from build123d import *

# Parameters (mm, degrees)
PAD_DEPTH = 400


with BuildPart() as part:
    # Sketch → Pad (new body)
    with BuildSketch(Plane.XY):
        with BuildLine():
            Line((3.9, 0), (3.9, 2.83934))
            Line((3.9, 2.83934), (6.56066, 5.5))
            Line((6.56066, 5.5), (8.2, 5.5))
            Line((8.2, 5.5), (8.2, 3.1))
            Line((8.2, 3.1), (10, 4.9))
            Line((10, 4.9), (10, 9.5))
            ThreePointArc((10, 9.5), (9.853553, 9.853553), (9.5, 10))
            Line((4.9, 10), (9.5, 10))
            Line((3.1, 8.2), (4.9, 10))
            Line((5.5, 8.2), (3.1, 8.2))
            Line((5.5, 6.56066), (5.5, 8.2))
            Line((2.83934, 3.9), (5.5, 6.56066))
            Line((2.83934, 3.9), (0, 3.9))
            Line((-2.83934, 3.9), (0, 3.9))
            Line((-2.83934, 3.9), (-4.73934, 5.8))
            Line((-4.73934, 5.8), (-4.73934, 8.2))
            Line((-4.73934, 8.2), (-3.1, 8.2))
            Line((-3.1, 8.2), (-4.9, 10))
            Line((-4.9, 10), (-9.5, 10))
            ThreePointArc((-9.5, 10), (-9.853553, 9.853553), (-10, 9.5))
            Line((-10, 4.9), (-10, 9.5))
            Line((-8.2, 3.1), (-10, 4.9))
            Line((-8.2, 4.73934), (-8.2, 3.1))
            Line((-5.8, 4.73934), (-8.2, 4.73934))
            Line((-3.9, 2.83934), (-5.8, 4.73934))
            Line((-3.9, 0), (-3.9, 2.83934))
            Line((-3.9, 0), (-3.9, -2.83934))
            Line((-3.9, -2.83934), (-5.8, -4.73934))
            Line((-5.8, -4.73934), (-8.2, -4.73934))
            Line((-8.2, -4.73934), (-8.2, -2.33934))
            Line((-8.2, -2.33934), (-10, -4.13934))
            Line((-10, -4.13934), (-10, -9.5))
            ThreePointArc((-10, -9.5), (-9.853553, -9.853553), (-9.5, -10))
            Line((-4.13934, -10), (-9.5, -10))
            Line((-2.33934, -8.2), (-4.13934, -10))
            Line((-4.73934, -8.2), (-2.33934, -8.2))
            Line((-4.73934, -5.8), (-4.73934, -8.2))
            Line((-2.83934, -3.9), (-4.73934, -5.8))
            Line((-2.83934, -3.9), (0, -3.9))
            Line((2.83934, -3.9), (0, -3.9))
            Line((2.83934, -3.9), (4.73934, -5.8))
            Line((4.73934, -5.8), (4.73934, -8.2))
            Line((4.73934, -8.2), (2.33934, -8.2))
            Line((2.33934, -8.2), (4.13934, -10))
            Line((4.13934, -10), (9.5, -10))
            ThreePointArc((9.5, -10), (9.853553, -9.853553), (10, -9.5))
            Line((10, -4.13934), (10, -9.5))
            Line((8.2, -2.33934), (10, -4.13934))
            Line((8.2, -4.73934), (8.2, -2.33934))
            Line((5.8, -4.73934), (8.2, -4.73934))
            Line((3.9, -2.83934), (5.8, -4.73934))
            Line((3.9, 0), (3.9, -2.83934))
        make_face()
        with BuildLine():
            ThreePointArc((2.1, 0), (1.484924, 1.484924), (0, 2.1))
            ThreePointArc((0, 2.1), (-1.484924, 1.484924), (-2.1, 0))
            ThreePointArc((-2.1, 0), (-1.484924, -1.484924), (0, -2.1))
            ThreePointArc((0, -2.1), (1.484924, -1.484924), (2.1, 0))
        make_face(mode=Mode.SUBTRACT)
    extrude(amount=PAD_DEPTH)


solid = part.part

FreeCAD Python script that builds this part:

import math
import FreeCAD as App
import Part
import Sketcher

V = App.Vector
Q = App.Units.Quantity

doc = App.newDocument("Part")
params = doc.addObject("Spreadsheet::Sheet", "Params")
for row, (alias, value) in enumerate([
    ("sketch1_radius", "0.500001 mm"),
    ("sketch1_radius2", "2.100001 mm"),
    ("sketch1_width", "4.6 mm"),
    ("sketch1_width2", "2.4 mm"),
    ("pad1_length", "400 mm"),
], start=1):
    params.set(f"A{row}", alias)
    params.set(f"B{row}", "=" + value)
    params.setAlias(f"B{row}", alias)

body = doc.addObject("PartDesign::Body", "Body")

# Sketch on XY plane
sketch1 = doc.addObject("Sketcher::SketchObject", "Sketch")
body.addObject(sketch1)
sketch1.AttachmentSupport = (doc.XY_Plane, [""])
sketch1.MapMode = "FlatFace"
sketch1.addGeometry(Part.LineSegment(V(3.9, 2.8, 0), V(6.6, 5.5, 0)), False)
sketch1.addGeometry(Part.LineSegment(V(6.6, 5.5, 0), V(8.2, 5.5, 0)), False)
sketch1.addGeometry(Part.LineSegment(V(8.2, 5.5, 0), V(8.2, 3.1, 0)), False)
sketch1.addGeometry(Part.LineSegment(V(8.2, 3.1, 0), V(10, 4.9, 0)), False)
sketch1.addGeometry(Part.LineSegment(V(10, 4.9, 0), V(10, 9.5, 0)), False)
sketch1.addGeometry(Part.ArcOfCircle(Part.Circle(V(9.5, 9.5, 0), V(0, 0, 1), 0.5), math.radians(0), math.radians(90)), False)
sketch1.addGeometry(Part.LineSegment(V(9.5, 10, 0), V(4.9, 10, 0)), False)
sketch1.addGeometry(Part.LineSegment(V(4.9, 10, 0), V(3.1, 8.2, 0)), False)
sketch1.addGeometry(Part.LineSegment(V(3.1, 8.2, 0), V(5.5, 8.2, 0)), False)
sketch1.addGeometry(Part.LineSegment(V(5.5, 8.2, 0), V(5.5, 6.6, 0)), False)
sketch1.addGeometry(Part.LineSegment(V(5.5, 6.6, 0), V(2.8, 3.9, 0)), False)
sketch1.addGeometry(Part.LineSegment(V(2.8, 3.9, 0), V(-2.8, 3.9, 0)), False)
sketch1.addGeometry(Part.LineSegment(V(-2.8, 3.9, 0), V(-4.7, 5.8, 0)), False)
sketch1.addGeometry(Part.LineSegment(V(-4.7, 5.8, 0), V(-4.7, 8.2, 0)), False)
sketch1.addGeometry(Part.LineSegment(V(-4.7, 8.2, 0), V(-3.1, 8.2, 0)), False)
sketch1.addGeometry(Part.LineSegment(V(-3.1, 8.2, 0), V(-4.9, 10, 0)), False)
sketch1.addGeometry(Part.LineSegment(V(-4.9, 10, 0), V(-9.5, 10, 0)), False)
sketch1.addGeometry(Part.ArcOfCircle(Part.Circle(V(-9.5, 9.5, 0), V(0, 0, 1), 0.5), math.radians(90), math.radians(180)), False)
sketch1.addGeometry(Part.LineSegment(V(-10, 9.5, 0), V(-10, 4.9, 0)), False)
sketch1.addGeometry(Part.LineSegment(V(-10, 4.9, 0), V(-8.2, 3.1, 0)), False)
sketch1.addGeometry(Part.LineSegment(V(-8.2, 3.1, 0), V(-8.2, 4.7, 0)), False)
sketch1.addGeometry(Part.LineSegment(V(-8.2, 4.7, 0), V(-5.8, 4.7, 0)), False)
sketch1.addGeometry(Part.LineSegment(V(-5.8, 4.7, 0), V(-3.9, 2.8, 0)), False)
sketch1.addGeometry(Part.LineSegment(V(-3.9, 2.8, 0), V(-3.9, -2.8, 0)), False)
sketch1.addGeometry(Part.LineSegment(V(-3.9, -2.8, 0), V(-5.8, -4.7, 0)), False)
sketch1.addGeometry(Part.LineSegment(V(-5.8, -4.7, 0), V(-8.2, -4.7, 0)), False)
sketch1.addGeometry(Part.LineSegment(V(-8.2, -4.7, 0), V(-8.2, -2.3, 0)), False)
sketch1.addGeometry(Part.LineSegment(V(-8.2, -2.3, 0), V(-10, -4.1, 0)), False)
sketch1.addGeometry(Part.LineSegment(V(-10, -4.1, 0), V(-10, -9.5, 0)), False)
sketch1.addGeometry(Part.ArcOfCircle(Part.Circle(V(-9.5, -9.5, 0), V(0, 0, 1), 0.5), math.radians(-180), math.radians(-90)), False)
sketch1.addGeometry(Part.LineSegment(V(-9.5, -10, 0), V(-4.1, -10, 0)), False)
sketch1.addGeometry(Part.LineSegment(V(-4.1, -10, 0), V(-2.3, -8.2, 0)), False)
sketch1.addGeometry(Part.LineSegment(V(-2.3, -8.2, 0), V(-4.7, -8.2, 0)), False)
sketch1.addGeometry(Part.LineSegment(V(-4.7, -8.2, 0), V(-4.7, -5.8, 0)), False)
sketch1.addGeometry(Part.LineSegment(V(-4.7, -5.8, 0), V(-2.8, -3.9, 0)), False)
sketch1.addGeometry(Part.LineSegment(V(-2.8, -3.9, 0), V(2.8, -3.9, 0)), False)
sketch1.addGeometry(Part.LineSegment(V(2.8, -3.9, 0), V(4.7, -5.8, 0)), False)
sketch1.addGeometry(Part.LineSegment(V(4.7, -5.8, 0), V(4.7, -8.2, 0)), False)
sketch1.addGeometry(Part.LineSegment(V(4.7, -8.2, 0), V(2.3, -8.2, 0)), False)
sketch1.addGeometry(Part.LineSegment(V(2.3, -8.2, 0), V(4.1, -10, 0)), False)
sketch1.addGeometry(Part.LineSegment(V(4.1, -10, 0), V(9.5, -10, 0)), False)
sketch1.addGeometry(Part.ArcOfCircle(Part.Circle(V(9.5, -9.5, 0), V(0, 0, 1), 0.5), math.radians(-90), math.radians(0)), False)
sketch1.addGeometry(Part.LineSegment(V(10, -9.5, 0), V(10, -4.1, 0)), False)
sketch1.addGeometry(Part.LineSegment(V(10, -4.1, 0), V(8.2, -2.3, 0)), False)
sketch1.addGeometry(Part.LineSegment(V(8.2, -2.3, 0), V(8.2, -4.7, 0)), False)
sketch1.addGeometry(Part.LineSegment(V(8.2, -4.7, 0), V(5.8, -4.7, 0)), False)
sketch1.addGeometry(Part.LineSegment(V(5.8, -4.7, 0), V(3.9, -2.8, 0)), False)
sketch1.addGeometry(Part.LineSegment(V(3.9, -2.8, 0), V(3.9, 2.8, 0)), False)
sketch1.addGeometry(Part.ArcOfCircle(Part.Circle(V(0, 0, 0), V(0, 0, 1), 2.1), math.radians(0), math.radians(90)), False)
sketch1.addGeometry(Part.ArcOfCircle(Part.Circle(V(0, 0, 0), V(0, 0, 1), 2.1), math.radians(-90), math.radians(0)), False)
sketch1.addGeometry(Part.ArcOfCircle(Part.Circle(V(0, 0, 0), V(0, 0, 1), 2.1), math.radians(-180), math.radians(-90)), False)
sketch1.addGeometry(Part.ArcOfCircle(Part.Circle(V(0, 0, 0), V(0, 0, 1), 2.1), math.radians(90), math.radians(180)), False)
sketch1.addConstraint(Sketcher.Constraint("Coincident", 0, 2, 1, 1))
sketch1.addConstraint(Sketcher.Constraint("Coincident", 1, 2, 2, 1))
sketch1.addConstraint(Sketcher.Constraint("Coincident", 2, 2, 3, 1))
sketch1.addConstraint(Sketcher.Constraint("Coincident", 3, 2, 4, 1))
sketch1.addConstraint(Sketcher.Constraint("Coincident", 4, 2, 5, 1))
sketch1.addConstraint(Sketcher.Constraint("Coincident", 5, 2, 6, 1))
sketch1.addConstraint(Sketcher.Constraint("Coincident", 6, 2, 7, 1))
sketch1.addConstraint(Sketcher.Constraint("Coincident", 7, 2, 8, 1))
sketch1.addConstraint(Sketcher.Constraint("Coincident", 8, 2, 9, 1))
sketch1.addConstraint(Sketcher.Constraint("Coincident", 9, 2, 10, 1))
sketch1.addConstraint(Sketcher.Constraint("Coincident", 10, 2, 11, 1))
sketch1.addConstraint(Sketcher.Constraint("Coincident", 11, 2, 12, 1))
sketch1.addConstraint(Sketcher.Constraint("Coincident", 12, 2, 13, 1))
sketch1.addConstraint(Sketcher.Constraint("Coincident", 13, 2, 14, 1))
sketch1.addConstraint(Sketcher.Constraint("Coincident", 14, 2, 15, 1))
sketch1.addConstraint(Sketcher.Constraint("Coincident", 15, 2, 16, 1))
sketch1.addConstraint(Sketcher.Constraint("Coincident", 16, 2, 17, 1))
sketch1.addConstraint(Sketcher.Constraint("Coincident", 17, 2, 18, 1))
sketch1.addConstraint(Sketcher.Constraint("Coincident", 18, 2, 19, 1))
sketch1.addConstraint(Sketcher.Constraint("Coincident", 19, 2, 20, 1))
sketch1.addConstraint(Sketcher.Constraint("Coincident", 20, 2, 21, 1))
sketch1.addConstraint(Sketcher.Constraint("Coincident", 21, 2, 22, 1))
sketch1.addConstraint(Sketcher.Constraint("Coincident", 22, 2, 23, 1))
sketch1.addConstraint(Sketcher.Constraint("Coincident", 23, 2, 24, 1))
sketch1.addConstraint(Sketcher.Constraint("Coincident", 24, 2, 25, 1))
sketch1.addConstraint(Sketcher.Constraint("Coincident", 25, 2, 26, 1))
sketch1.addConstraint(Sketcher.Constraint("Coincident", 26, 2, 27, 1))
sketch1.addConstraint(Sketcher.Constraint("Coincident", 27, 2, 28, 1))
sketch1.addConstraint(Sketcher.Constraint("Coincident", 28, 2, 29, 1))
sketch1.addConstraint(Sketcher.Constraint("Coincident", 29, 2, 30, 1))
sketch1.addConstraint(Sketcher.Constraint("Coincident", 30, 2, 31, 1))
sketch1.addConstraint(Sketcher.Constraint("Coincident", 31, 2, 32, 1))
sketch1.addConstraint(Sketcher.Constraint("Coincident", 32, 2, 33, 1))
sketch1.addConstraint(Sketcher.Constraint("Coincident", 33, 2, 34, 1))
sketch1.addConstraint(Sketcher.Constraint("Coincident", 34, 2, 35, 1))
sketch1.addConstraint(Sketcher.Constraint("Coincident", 35, 2, 36, 1))
sketch1.addConstraint(Sketcher.Constraint("Coincident", 36, 2, 37, 1))
sketch1.addConstraint(Sketcher.Constraint("Coincident", 37, 2, 38, 1))
sketch1.addConstraint(Sketcher.Constraint("Coincident", 38, 2, 39, 1))
sketch1.addConstraint(Sketcher.Constraint("Coincident", 39, 2, 40, 1))
sketch1.addConstraint(Sketcher.Constraint("Coincident", 40, 2, 41, 1))
sketch1.addConstraint(Sketcher.Constraint("Coincident", 41, 2, 42, 1))
sketch1.addConstraint(Sketcher.Constraint("Coincident", 42, 2, 43, 1))
sketch1.addConstraint(Sketcher.Constraint("Coincident", 43, 2, 44, 1))
sketch1.addConstraint(Sketcher.Constraint("Coincident", 44, 2, 45, 1))
sketch1.addConstraint(Sketcher.Constraint("Coincident", 45, 2, 46, 1))
sketch1.addConstraint(Sketcher.Constraint("Coincident", 46, 2, 47, 1))
sketch1.addConstraint(Sketcher.Constraint("Coincident", 47, 2, 0, 1))
sketch1.addConstraint(Sketcher.Constraint("Tangent", 48, 1, 49, 2))
sketch1.addConstraint(Sketcher.Constraint("Tangent", 49, 1, 50, 2))
sketch1.addConstraint(Sketcher.Constraint("Tangent", 50, 1, 51, 2))
sketch1.addConstraint(Sketcher.Constraint("Tangent", 51, 1, 48, 2))
sketch1.addConstraint(Sketcher.Constraint("Horizontal", 1))
sketch1.addConstraint(Sketcher.Constraint("Vertical", 2))
sketch1.addConstraint(Sketcher.Constraint("Vertical", 4))
sketch1.addConstraint(Sketcher.Constraint("Horizontal", 6))
sketch1.addConstraint(Sketcher.Constraint("Horizontal", 8))
sketch1.addConstraint(Sketcher.Constraint("Vertical", 9))
sketch1.addConstraint(Sketcher.Constraint("Horizontal", 11))
sketch1.addConstraint(Sketcher.Constraint("Vertical", 13))
sketch1.addConstraint(Sketcher.Constraint("Horizontal", 14))
sketch1.addConstraint(Sketcher.Constraint("Horizontal", 16))
sketch1.addConstraint(Sketcher.Constraint("Vertical", 18))
sketch1.addConstraint(Sketcher.Constraint("Vertical", 20))
sketch1.addConstraint(Sketcher.Constraint("Horizontal", 21))
sketch1.addConstraint(Sketcher.Constraint("Vertical", 23))
sketch1.addConstraint(Sketcher.Constraint("Horizontal", 25))
sketch1.addConstraint(Sketcher.Constraint("Vertical", 26))
sketch1.addConstraint(Sketcher.Constraint("Vertical", 28))
sketch1.addConstraint(Sketcher.Constraint("Horizontal", 30))
sketch1.addConstraint(Sketcher.Constraint("Horizontal", 32))
sketch1.addConstraint(Sketcher.Constraint("Vertical", 33))
sketch1.addConstraint(Sketcher.Constraint("Horizontal", 35))
sketch1.addConstraint(Sketcher.Constraint("Vertical", 37))
sketch1.addConstraint(Sketcher.Constraint("Horizontal", 38))
sketch1.addConstraint(Sketcher.Constraint("Horizontal", 40))
sketch1.addConstraint(Sketcher.Constraint("Vertical", 42))
sketch1.addConstraint(Sketcher.Constraint("Vertical", 44))
sketch1.addConstraint(Sketcher.Constraint("Horizontal", 45))
sketch1.addConstraint(Sketcher.Constraint("Vertical", 47))
sketch1.addConstraint(Sketcher.Constraint("Coincident", 48, 3, -1, 1))
sketch1.addConstraint(Sketcher.Constraint("Equal", 5, 17))
sketch1.addConstraint(Sketcher.Constraint("Equal", 17, 29))
sketch1.addConstraint(Sketcher.Constraint("Equal", 29, 41))
sketch1.addConstraint(Sketcher.Constraint("Equal", 48, 49))
sketch1.addConstraint(Sketcher.Constraint("Symmetric", 5, 3, 29, 3, -1, 1))
sketch1.addConstraint(Sketcher.Constraint("Symmetric", 17, 3, 41, 3, -1, 1))
sketch1.addConstraint(Sketcher.Constraint("Symmetric", 10, 2, 34, 2, -1, 1))
sketch1.addConstraint(Sketcher.Constraint("Symmetric", 12, 2, 36, 2, -1, 1))
sketch1.addConstraint(Sketcher.Constraint("Symmetric", 20, 2, 44, 2, -1, 1))
sketch1.addConstraint(Sketcher.Constraint("Symmetric", 22, 2, 46, 2, -1, 1))
sketch1.addConstraint(Sketcher.Constraint("Symmetric", 5, 3, 17, 3, -2))
sketch1.addConstraint(Sketcher.Constraint("Symmetric", 7, 2, 14, 2, -2))
sketch1.addConstraint(Sketcher.Constraint("Symmetric", 2, 2, 19, 2, -2))
sketch1.addConstraint(Sketcher.Constraint("Symmetric", 33, 2, 36, 2, -2))
sketch1.addConstraint(Sketcher.Constraint("Symmetric", 31, 2, 38, 2, -2))
sketch1.addConstraint(Sketcher.Constraint("Symmetric", 26, 2, 43, 2, -2))
sketch1.addConstraint(Sketcher.Constraint("Symmetric", 24, 2, 45, 2, -2))
sketch1.addConstraint(Sketcher.Constraint("PointOnObject", 48, 1, -1))
sketch1.addConstraint(Sketcher.Constraint("PointOnObject", 49, 1, -2))
sketch1.addConstraint(Sketcher.Constraint("PointOnObject", 50, 1, -1))
sketch1.addConstraint(Sketcher.Constraint("PointOnObject", 51, 1, -2))
sketch1.addConstraint(Sketcher.Constraint("Parallel", 0, 3))
sketch1.addConstraint(Sketcher.Constraint("Parallel", 3, 7))
sketch1.addConstraint(Sketcher.Constraint("Parallel", 7, 10))
sketch1.addConstraint(Sketcher.Constraint("Perpendicular", 10, 12))
sketch1.addConstraint(Sketcher.Constraint("Parallel", 12, 15))
sketch1.addConstraint(Sketcher.Constraint("Parallel", 15, 19))
sketch1.addConstraint(Sketcher.Constraint("Parallel", 19, 22))
sketch1.addConstraint(Sketcher.Constraint("Perpendicular", 22, 24))
sketch1.addConstraint(Sketcher.Constraint("Parallel", 24, 27))
sketch1.addConstraint(Sketcher.Constraint("Parallel", 27, 31))
sketch1.addConstraint(Sketcher.Constraint("Parallel", 31, 34))
sketch1.addConstraint(Sketcher.Constraint("Perpendicular", 34, 36))
sketch1.addConstraint(Sketcher.Constraint("Parallel", 36, 39))
sketch1.addConstraint(Sketcher.Constraint("Parallel", 39, 43))
sketch1.addConstraint(Sketcher.Constraint("Parallel", 43, 46))
sketch1.addConstraint(Sketcher.Constraint("Horizontal", 17, 3, 4, 2))
sketch1.addConstraint(Sketcher.Constraint("Horizontal", 4, 2, 17, 2))
sketch1.addConstraint(Sketcher.Constraint("Horizontal", 3, 2, 18, 2))
sketch1.addConstraint(Sketcher.Constraint("Horizontal", 41, 3, 28, 2))
sketch1.addConstraint(Sketcher.Constraint("Horizontal", 28, 2, 41, 2))
sketch1.addConstraint(Sketcher.Constraint("Horizontal", 22, 2, 47, 2))
sketch1.addConstraint(Sketcher.Constraint("Vertical", 41, 3, 5, 2))
sketch1.addConstraint(Sketcher.Constraint("Vertical", 29, 3, 16, 2))
sketch1.addConstraint(Sketcher.Constraint("Vertical", 16, 2, 29, 2))
sketch1.addConstraint(Sketcher.Constraint("Vertical", 5, 2, 40, 2))
sketch1.addConstraint(Sketcher.Constraint("Equal", 1, 14))
sketch1.addConstraint(Sketcher.Constraint("Equal", 8, 21))
sketch1.addConstraint(Sketcher.Constraint("Equal", 25, 32))
sketch1.addConstraint(Sketcher.Constraint("Equal", 45, 2))
sketch1.addConstraint(Sketcher.Constraint("Equal", 16, 4))
sketch1.addConstraint(Sketcher.Constraint("Equal", 14, 9))
sketch1.addConstraint(Sketcher.Constraint("Equal", 35, 23))
sketch1.addConstraint(Sketcher.Constraint("Equal", 13, 26))
sketch1.addConstraint(Sketcher.Constraint("Equal", 40, 28))
sketch1.addConstraint(Sketcher.Constraint("Equal", 3, 7))
sketch1.addConstraint(Sketcher.Constraint("Equal", 0, 10))
sketch1.addConstraint(Sketcher.Constraint("Radius", 5, Q("0.500001 mm")))
sketch1.addConstraint(Sketcher.Constraint("Radius", 48, Q("2.100001 mm")))
sketch1.addConstraint(Sketcher.Constraint("DistanceX", 6, 2, 6, 1, Q("4.6 mm")))
sketch1.addConstraint(Sketcher.Constraint("DistanceX", 8, 1, 8, 2, Q("2.4 mm")))
sketch1.addConstraint(Sketcher.Constraint("DistanceX", -1, 1, 3, 2, Q("10 mm")))
sketch1.addConstraint(Sketcher.Constraint("DistanceY", 0, 2, 5, 3, Q("3.999999 mm")))
sketch1.addConstraint(Sketcher.Constraint("DistanceY", -1, 1, 10, 2, Q("3.9 mm")))
sketch1.addConstraint(Sketcher.Constraint("DistanceX", 1, 1, 1, 2, Q("1.63934 mm")))
sketch1.setExpression("Constraints[138]", "Params.sketch1_radius")
sketch1.setExpression("Constraints[139]", "Params.sketch1_radius2")
sketch1.setExpression("Constraints[140]", "Params.sketch1_width")
sketch1.setExpression("Constraints[141]", "Params.sketch1_width2")
pad1 = doc.addObject("PartDesign::Pad", "Pad")
body.addObject(pad1)
pad1.Profile = sketch1
pad1.setExpression("Length", "Params.pad1_length")

doc.recompute()
